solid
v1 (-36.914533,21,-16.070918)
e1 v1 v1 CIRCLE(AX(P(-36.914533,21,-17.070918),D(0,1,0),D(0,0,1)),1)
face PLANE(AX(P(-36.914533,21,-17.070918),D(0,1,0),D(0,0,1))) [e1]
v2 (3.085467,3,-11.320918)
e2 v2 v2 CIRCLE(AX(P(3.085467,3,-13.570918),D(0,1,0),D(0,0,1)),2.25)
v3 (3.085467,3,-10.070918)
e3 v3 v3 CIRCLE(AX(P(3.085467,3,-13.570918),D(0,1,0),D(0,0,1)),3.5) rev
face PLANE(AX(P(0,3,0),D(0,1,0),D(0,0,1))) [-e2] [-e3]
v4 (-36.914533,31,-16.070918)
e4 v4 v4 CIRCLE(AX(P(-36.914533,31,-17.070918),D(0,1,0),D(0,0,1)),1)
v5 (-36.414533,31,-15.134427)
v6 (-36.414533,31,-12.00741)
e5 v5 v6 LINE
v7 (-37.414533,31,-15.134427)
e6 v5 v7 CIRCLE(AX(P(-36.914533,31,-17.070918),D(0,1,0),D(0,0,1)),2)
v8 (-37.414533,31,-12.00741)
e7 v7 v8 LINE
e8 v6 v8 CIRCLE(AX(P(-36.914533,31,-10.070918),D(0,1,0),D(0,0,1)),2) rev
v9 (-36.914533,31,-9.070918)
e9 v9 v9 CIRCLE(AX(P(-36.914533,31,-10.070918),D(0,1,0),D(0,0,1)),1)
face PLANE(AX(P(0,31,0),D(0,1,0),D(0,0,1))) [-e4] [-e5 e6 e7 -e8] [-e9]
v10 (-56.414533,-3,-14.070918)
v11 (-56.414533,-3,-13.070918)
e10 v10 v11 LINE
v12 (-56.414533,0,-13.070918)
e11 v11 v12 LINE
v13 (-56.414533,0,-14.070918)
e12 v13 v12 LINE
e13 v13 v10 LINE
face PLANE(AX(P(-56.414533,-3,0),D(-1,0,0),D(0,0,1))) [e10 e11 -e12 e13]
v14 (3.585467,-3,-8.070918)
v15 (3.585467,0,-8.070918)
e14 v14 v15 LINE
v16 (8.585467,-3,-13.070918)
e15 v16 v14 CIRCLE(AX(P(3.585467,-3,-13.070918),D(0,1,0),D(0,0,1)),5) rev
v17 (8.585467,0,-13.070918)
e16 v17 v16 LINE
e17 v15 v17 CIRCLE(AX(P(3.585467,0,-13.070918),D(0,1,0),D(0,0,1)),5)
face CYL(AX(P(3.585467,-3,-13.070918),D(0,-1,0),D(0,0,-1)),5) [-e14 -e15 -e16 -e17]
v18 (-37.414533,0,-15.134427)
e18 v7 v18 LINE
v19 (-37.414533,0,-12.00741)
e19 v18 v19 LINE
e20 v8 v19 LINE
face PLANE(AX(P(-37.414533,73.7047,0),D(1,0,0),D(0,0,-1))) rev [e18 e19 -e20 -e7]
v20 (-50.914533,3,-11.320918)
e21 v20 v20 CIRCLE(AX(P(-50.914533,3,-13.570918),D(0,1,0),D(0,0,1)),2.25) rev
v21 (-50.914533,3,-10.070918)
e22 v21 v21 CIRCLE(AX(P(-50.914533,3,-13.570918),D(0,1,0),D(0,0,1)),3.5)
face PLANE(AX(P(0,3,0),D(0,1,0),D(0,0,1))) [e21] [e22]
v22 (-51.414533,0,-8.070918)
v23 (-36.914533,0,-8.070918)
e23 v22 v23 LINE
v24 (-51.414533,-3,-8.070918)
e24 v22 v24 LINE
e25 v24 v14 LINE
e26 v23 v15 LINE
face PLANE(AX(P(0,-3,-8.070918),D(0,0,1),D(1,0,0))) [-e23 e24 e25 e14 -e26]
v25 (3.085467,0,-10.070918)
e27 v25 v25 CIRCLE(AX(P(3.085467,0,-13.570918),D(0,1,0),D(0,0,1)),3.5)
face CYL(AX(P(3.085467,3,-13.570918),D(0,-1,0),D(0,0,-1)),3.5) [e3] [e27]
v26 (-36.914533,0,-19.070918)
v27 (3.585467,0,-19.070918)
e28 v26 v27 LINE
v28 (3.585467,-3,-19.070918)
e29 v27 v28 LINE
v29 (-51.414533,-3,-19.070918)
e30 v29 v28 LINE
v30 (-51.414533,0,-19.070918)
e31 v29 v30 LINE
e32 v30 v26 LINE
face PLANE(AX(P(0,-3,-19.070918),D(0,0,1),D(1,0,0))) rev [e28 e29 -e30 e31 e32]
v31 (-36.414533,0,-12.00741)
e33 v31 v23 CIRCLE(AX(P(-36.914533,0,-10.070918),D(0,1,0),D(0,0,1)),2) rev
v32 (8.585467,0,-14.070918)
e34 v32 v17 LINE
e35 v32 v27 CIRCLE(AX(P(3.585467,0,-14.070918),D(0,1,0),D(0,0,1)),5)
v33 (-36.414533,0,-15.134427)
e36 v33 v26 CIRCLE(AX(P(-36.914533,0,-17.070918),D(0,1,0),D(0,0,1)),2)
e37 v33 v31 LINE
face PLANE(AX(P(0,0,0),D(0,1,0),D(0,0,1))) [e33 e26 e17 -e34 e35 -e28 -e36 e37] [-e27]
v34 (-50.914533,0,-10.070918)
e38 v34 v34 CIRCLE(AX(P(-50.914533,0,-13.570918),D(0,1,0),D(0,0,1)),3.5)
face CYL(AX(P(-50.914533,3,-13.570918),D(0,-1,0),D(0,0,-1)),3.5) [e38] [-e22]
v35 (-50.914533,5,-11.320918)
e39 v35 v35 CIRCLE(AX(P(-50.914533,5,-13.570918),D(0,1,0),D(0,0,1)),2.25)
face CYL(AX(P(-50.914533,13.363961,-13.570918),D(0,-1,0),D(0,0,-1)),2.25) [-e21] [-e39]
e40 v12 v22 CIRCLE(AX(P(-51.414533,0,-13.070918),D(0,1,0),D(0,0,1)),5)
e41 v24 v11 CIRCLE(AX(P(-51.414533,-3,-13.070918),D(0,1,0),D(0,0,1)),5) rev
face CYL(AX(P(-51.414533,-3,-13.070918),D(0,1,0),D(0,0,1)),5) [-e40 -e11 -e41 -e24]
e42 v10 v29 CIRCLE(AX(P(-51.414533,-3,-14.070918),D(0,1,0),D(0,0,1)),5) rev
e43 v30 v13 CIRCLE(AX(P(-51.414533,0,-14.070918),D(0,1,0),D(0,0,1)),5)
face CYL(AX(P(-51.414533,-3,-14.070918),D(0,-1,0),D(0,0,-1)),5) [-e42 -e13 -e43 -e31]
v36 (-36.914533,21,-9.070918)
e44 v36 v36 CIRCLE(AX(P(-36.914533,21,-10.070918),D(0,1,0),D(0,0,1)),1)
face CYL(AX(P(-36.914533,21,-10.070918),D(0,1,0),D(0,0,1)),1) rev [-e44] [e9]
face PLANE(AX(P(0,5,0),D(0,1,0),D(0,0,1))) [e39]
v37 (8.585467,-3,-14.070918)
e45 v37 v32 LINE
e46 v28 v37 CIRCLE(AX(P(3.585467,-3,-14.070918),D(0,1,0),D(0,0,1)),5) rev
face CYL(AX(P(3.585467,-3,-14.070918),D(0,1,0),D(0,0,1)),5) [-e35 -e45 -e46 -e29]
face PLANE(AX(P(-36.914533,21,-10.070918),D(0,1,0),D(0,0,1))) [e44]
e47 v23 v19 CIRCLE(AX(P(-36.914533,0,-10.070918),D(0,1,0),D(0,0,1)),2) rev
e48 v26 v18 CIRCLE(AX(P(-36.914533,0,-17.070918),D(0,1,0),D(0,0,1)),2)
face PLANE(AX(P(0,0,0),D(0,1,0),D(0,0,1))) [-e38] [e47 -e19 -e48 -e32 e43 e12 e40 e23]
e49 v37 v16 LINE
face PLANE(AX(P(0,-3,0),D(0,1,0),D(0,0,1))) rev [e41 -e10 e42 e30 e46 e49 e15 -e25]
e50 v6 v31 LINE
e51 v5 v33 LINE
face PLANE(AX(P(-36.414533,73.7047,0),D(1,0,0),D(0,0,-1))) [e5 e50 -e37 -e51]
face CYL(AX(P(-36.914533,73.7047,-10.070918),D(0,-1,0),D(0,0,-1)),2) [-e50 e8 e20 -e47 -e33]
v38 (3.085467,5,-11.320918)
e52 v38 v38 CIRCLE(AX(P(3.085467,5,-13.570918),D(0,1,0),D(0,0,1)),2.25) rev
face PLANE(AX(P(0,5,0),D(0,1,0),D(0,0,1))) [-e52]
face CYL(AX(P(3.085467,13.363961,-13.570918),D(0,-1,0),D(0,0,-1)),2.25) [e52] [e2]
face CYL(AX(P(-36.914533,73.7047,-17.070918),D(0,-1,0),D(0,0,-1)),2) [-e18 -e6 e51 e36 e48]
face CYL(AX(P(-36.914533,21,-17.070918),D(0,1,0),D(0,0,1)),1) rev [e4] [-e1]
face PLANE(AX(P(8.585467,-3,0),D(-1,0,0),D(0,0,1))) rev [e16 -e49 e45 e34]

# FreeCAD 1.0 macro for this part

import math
import FreeCAD as App
import Part
import Sketcher
from FreeCAD import Vector
Q = App.Units.Quantity


def edges_at(feature, points):
    """Names of the edges that pass closest to the given points."""
    edges = feature.Shape.Edges
    near = lambda p: min(range(len(edges)), key=lambda i: edges[i].distToShape(Part.Vertex(*p))[0])
    return sorted({f"Edge{near(p) + 1}" for p in points})


def add_polygon(sketch, points):
    """Adds a closed chain of lines whose ends are joined by coincident constraints."""
    first, n = sketch.GeometryCount, len(points)
    for a, b in zip(points, points[1:] + points[:1]):
        sketch.addGeometry(Part.LineSegment(App.Vector(*a, 0), App.Vector(*b, 0)), False)
    for i in range(n):
        sketch.addConstraint(Sketcher.Constraint("Coincident", first + i, 2, first + (i + 1) % n, 1))

doc = App.newDocument("Part")
params = doc.addObject("Spreadsheet::Sheet", "Params")
for row, (alias, value) in enumerate([
    ("sketch1_width", "65 mm"),
    ("sketch1_height", "11 mm"),
    ("pad1_length", "3 mm"),
    ("sketch2_diameter", "7 mm"),
    ("pad2_length", "3 mm"),
    ("sketch3_diameter", "4.5 mm"),
    ("pad3_length", "5 mm"),
    ("sketch4_radius", "2 mm"),
    ("pad4_length", "31 mm"),
    ("fillet_radius", "5 mm"),
    ("sketch5_diameter", "2 mm"),
    ("pocket1_length", "10 mm"),
], start=1):
    params.set(f"A{row}", alias)
    params.set(f"B{row}", "=" + value)
    params.setAlias(f"B{row}", alias)

body = doc.addObject("PartDesign::Body", "Body")

sketch1 = body.newObject("Sketcher::SketchObject", "Sketch")
sketch1.AttachmentSupport = (doc.getObject("XZ_Plane"), [""])
sketch1.MapMode = "FlatFace"
add_polygon(sketch1, [(-56, -19), (-56, -8), (9, -8), (9, -19)])
sketch1.addConstraint([
    Sketcher.Constraint("Vertical", 0),
    Sketcher.Constraint("Horizontal", 1),
    Sketcher.Constraint("Vertical", 2),
    Sketcher.Constraint("Horizontal", 3),
    Sketcher.Constraint("DistanceX", 1, 1, 1, 2, Q("65 mm")),
    Sketcher.Constraint("DistanceY", 0, 1, 0, 2, Q("11 mm")),
    Sketcher.Constraint("DistanceY", 0, 2, -1, 1, Q("8.070918 mm")),
    Sketcher.Constraint("DistanceX", 0, 2, -1, 1, Q("56.414533 mm")),
])
sketch1.setExpression("Constraints[8]", "Params.sketch1_width")
sketch1.setExpression("Constraints[9]", "Params.sketch1_height")
pad1 = body.newObject("PartDesign::Pad", "Pad")
pad1.Profile = sketch1
pad1.setExpression("Length", "Params.pad1_length")

sketch2 = body.newObject("Sketcher::SketchObject", "Sketch001")
sketch2.AttachmentSupport = (doc.getObject("XZ_Plane"), [""])
sketch2.MapMode = "FlatFace"
sketch2.addGeometry([
    Part.Circle(Vector(-50.9, -13.6, 0), Vector(0, 0, 1), 3.5),
    Part.Circle(Vector(3.1, -13.6, 0), Vector(0, 0, 1), 3.5),
], False)
sketch2.addConstraint([
    Sketcher.Constraint("Equal", 0, 1),
    Sketcher.Constraint("Horizontal", 0, 3, 1, 3),
    Sketcher.Constraint("Diameter", 0, Q("7 mm")),
    Sketcher.Constraint("DistanceX", 0, 3, 1, 3, Q("54 mm")),
    Sketcher.Constraint("DistanceY", 0, 3, -1, 1, Q("13.570918 mm")),
    Sketcher.Constraint("DistanceX", 0, 3, -1, 1, Q("50.914533 mm")),
])
sketch2.setExpression("Constraints[2]", "Params.sketch2_diameter")
pad2 = body.newObject("PartDesign::Pad", "Pad001")
pad2.Profile = sketch2
pad2.setExpression("Length", "Params.pad2_length")
pad2.Reversed = True

sketch3 = body.newObject("Sketcher::SketchObject", "Sketch002")
sketch3.AttachmentSupport = (doc.getObject("XZ_Plane"), [""])
sketch3.MapMode = "FlatFace"
sketch3.addGeometry([
    Part.Circle(Vector(-50.9, -13.6, 0), Vector(0, 0, 1), 2.2),
    Part.Circle(Vector(3.1, -13.6, 0), Vector(0, 0, 1), 2.2),
], False)
sketch3.addConstraint([
    Sketcher.Constraint("Equal", 0, 1),
    Sketcher.Constraint("Horizontal", 0, 3, 1, 3),
    Sketcher.Constraint("Diameter", 0, Q("4.5 mm")),
    Sketcher.Constraint("DistanceX", 0, 3, 1, 3, Q("54 mm")),
    Sketcher.Constraint("DistanceY", 0, 3, -1, 1, Q("13.570918 mm")),
    Sketcher.Constraint("DistanceX", 0, 3, -1, 1, Q("50.914533 mm")),
])
sketch3.setExpression("Constraints[2]", "Params.sketch3_diameter")
pad3 = body.newObject("PartDesign::Pad", "Pad002")
pad3.Profile = sketch3
pad3.setExpression("Length", "Params.pad3_length")
pad3.Reversed = True

sketch4 = body.newObject("Sketcher::SketchObject", "Sketch003")
sketch4.AttachmentSupport = (doc.getObject("XZ_Plane"), [""])
sketch4.MapMode = "FlatFace"
sketch4.addGeometry([
    Part.LineSegment(Vector(-37.4, -15.1, 0), Vector(-37.4, -12, 0)),
    Part.ArcOfCircle(Part.Circle(Vector(-36.9, -10.1, 0), Vector(0, 0, 1), 2), math.radians(-76), math.radians(256)),
    Part.LineSegment(Vector(-36.4, -12, 0), Vector(-36.4, -15.1, 0)),
    Part.ArcOfCircle(Part.Circle(Vector(-36.9, -17.1, 0), Vector(0, 0, 1), 2), math.radians(104), math.radians(436)),
], False)
sketch4.addConstraint([
    Sketcher.Constraint("Coincident", 0, 2, 1, 2),
    Sketcher.Constraint("Coincident", 1, 1, 2, 1),
    Sketcher.Constraint("Coincident", 2, 2, 3, 2),
    Sketcher.Constraint("Coincident", 3, 1, 0, 1),
    Sketcher.Constraint("Vertical", 0),
    Sketcher.Constraint("Vertical", 2),
    Sketcher.Constraint("Equal", 1, 3),
    Sketcher.Constraint("Horizontal", 0, 2, 1, 1),
    Sketcher.Constraint("Horizontal", 2, 2, 3, 1),
    Sketcher.Constraint("Radius", 1, Q("2 mm")),
    Sketcher.Constraint("DistanceY", 3, 3, 1, 3, Q("7 mm")),
    Sketcher.Constraint("DistanceX", 0, 2, 1, 1, Q("1 mm")),
    Sketcher.Constraint("DistanceY", 1, 3, -1, 1, Q("10.070918 mm")),
    Sketcher.Constraint("DistanceX", 1, 3, -1, 1, Q("36.914533 mm")),
])
sketch4.setExpression("Constraints[9]", "Params.sketch4_radius")
pad4 = body.newObject("PartDesign::Pad", "Pad003")
pad4.Profile = sketch4
pad4.setExpression("Length", "Params.pad4_length")
pad4.Reversed = True
doc.recompute()

fillet = body.newObject("PartDesign::Fillet", "Fillet")
fillet.Base = (pad4, edges_at(pad4, [
    (-56.415, -1.5, -8.071),
    (-56.415, -1.5, -19.071),
    (8.585, -1.5, -19.071),
    (8.585, -1.5, -8.071),
]))
fillet.setExpression("Radius", "Params.fillet_radius")

sketch5 = body.newObject("Sketcher::SketchObject", "Sketch004")
sketch5.AttachmentSupport = (doc.getObject("XZ_Plane"), [""])
sketch5.MapMode = "FlatFace"
sketch5.AttachmentOffset = App.Placement(Vector(0, 0, -31), App.Rotation())
sketch5.addGeometry([
    Part.Circle(Vector(-36.9, -10.1, 0), Vector(0, 0, 1), 1),
    Part.Circle(Vector(-36.9, -17.1, 0), Vector(0, 0, 1), 1),
], False)
sketch5.addConstraint([
    Sketcher.Constraint("Equal", 0, 1),
    Sketcher.Constraint("Vertical", 0, 3, 1, 3),
    Sketcher.Constraint("Diameter", 0, Q("2 mm")),
    Sketcher.Constraint("DistanceY", 1, 3, 0, 3, Q("7 mm")),
    Sketcher.Constraint("DistanceY", 0, 3, -1, 1, Q("10.070918 mm")),
    Sketcher.Constraint("DistanceX", 0, 3, -1, 1, Q("36.914533 mm")),
])
sketch5.setExpression("Constraints[2]", "Params.sketch5_diameter")
pocket1 = body.newObject("PartDesign::Pocket", "Pocket")
pocket1.Profile = sketch5
pocket1.setExpression("Length", "Params.pocket1_length")
pocket1.Reversed = True

doc.recompute()
